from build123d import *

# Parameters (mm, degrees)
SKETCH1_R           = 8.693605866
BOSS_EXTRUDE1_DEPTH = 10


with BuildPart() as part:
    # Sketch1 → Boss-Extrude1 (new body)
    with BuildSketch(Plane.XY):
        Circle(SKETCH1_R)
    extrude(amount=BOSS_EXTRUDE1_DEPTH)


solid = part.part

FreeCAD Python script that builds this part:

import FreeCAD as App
import Part
import Sketcher

V = App.Vector

doc = App.newDocument("Part")
body = doc.addObject("PartDesign::Body", "Body")

# Sketch on XY plane
sketch1 = doc.addObject("Sketcher::SketchObject", "Sketch")
body.addObject(sketch1)
sketch1.AttachmentSupport = (doc.XY_Plane, [""])
sketch1.MapMode = "FlatFace"
sketch1.addGeometry(Part.Circle(V(0, 0, 0), V(0, 0, 1), 8.693606), False)
sketch1.addConstraint([
    Sketcher.Constraint("Coincident", 0, 3, -1, 1),
    Sketcher.Constraint("Diameter", 0, 17.387212),
])
pad1 = doc.addObject("PartDesign::Pad", "Pad")
body.addObject(pad1)
pad1.Profile = sketch1
pad1.Length = 10

doc.recompute()
